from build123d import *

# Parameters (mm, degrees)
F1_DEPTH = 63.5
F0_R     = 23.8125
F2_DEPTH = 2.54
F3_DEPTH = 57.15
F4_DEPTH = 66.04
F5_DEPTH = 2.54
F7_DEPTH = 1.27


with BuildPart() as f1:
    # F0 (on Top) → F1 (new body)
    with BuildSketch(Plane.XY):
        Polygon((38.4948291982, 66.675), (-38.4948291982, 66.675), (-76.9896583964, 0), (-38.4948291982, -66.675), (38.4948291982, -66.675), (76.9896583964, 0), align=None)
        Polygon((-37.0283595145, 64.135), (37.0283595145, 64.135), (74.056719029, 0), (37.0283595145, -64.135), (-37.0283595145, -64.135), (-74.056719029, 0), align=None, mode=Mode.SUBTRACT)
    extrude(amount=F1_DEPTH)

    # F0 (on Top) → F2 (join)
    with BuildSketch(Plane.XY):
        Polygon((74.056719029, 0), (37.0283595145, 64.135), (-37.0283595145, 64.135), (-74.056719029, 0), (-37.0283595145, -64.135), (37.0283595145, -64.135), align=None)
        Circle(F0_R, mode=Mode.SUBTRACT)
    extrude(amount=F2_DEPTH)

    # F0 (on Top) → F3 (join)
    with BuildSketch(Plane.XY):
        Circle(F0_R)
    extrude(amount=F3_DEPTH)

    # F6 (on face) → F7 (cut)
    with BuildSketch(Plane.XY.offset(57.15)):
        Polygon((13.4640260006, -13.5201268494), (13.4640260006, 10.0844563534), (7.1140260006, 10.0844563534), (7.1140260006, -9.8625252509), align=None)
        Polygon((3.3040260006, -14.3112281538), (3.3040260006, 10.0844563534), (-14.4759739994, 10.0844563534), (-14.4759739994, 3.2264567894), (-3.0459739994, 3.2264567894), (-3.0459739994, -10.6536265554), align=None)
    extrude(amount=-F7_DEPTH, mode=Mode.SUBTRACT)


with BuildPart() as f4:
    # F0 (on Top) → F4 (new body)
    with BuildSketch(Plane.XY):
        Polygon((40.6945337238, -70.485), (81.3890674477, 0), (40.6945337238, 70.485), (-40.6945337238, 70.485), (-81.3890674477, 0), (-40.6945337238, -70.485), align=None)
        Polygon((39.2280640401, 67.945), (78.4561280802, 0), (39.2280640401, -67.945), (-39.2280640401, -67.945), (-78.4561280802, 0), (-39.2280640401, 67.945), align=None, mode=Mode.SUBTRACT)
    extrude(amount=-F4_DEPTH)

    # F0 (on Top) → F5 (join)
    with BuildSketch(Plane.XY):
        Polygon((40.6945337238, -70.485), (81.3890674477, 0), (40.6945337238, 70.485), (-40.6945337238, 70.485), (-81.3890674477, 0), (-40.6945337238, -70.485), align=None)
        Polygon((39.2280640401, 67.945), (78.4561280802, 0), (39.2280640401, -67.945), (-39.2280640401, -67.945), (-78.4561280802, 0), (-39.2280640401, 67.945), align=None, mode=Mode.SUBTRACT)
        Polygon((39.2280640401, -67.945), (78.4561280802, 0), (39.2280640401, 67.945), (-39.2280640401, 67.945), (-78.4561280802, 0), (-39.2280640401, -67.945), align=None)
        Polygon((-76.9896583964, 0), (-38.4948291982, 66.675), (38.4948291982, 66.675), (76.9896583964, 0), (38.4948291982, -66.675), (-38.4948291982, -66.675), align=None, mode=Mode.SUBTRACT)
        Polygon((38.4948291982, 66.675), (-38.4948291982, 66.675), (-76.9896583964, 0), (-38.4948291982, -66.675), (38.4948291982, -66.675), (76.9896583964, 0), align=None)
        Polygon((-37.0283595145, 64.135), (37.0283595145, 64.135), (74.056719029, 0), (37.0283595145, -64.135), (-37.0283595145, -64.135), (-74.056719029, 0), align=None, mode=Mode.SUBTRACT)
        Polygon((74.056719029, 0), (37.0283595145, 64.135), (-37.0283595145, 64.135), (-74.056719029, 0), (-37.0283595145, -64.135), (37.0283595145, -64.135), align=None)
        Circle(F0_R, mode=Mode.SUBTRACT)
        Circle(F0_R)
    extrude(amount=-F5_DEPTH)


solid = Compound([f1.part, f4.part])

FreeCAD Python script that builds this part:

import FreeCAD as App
import Part
import Sketcher
from FreeCAD import Vector
Q = App.Units.Quantity


def add_polygon(sketch, points):
    """Adds a closed chain of lines whose ends are joined by coincident constraints."""
    first, n = sketch.GeometryCount, len(points)
    for a, b in zip(points, points[1:] + points[:1]):
        sketch.addGeometry(Part.LineSegment(App.Vector(*a, 0), App.Vector(*b, 0)), False)
    for i in range(n):
        sketch.addConstraint(Sketcher.Constraint("Coincident", first + i, 2, first + (i + 1) % n, 1))

doc = App.newDocument("Part")
body = doc.addObject("PartDesign::Body", "Body")

sketch1 = doc.addObject("Sketcher::SketchObject", "Sketch")
body.addObject(sketch1)
sketch1.AttachmentSupport = (doc.XY_Plane, [""])
sketch1.MapMode = "FlatFace"
add_polygon(sketch1, [(38, 67), (-38, 67), (-77, 0), (-38, -67), (38, -67), (77, 0)])
add_polygon(sketch1, [(-74, 0), (-37, 64), (37, 64), (74, 0), (37, -64), (-37, -64)])
sketch1.addConstraint([
    Sketcher.Constraint("Horizontal", 0),
    Sketcher.Constraint("Horizontal", 3),
    Sketcher.Constraint("Horizontal", 7),
    Sketcher.Constraint("Horizontal", 10),
    Sketcher.Constraint("Symmetric", 0, 2, 3, 2, -1, 1),
    Sketcher.Constraint("Symmetric", 1, 2, 4, 2, -1, 1),
    Sketcher.Constraint("Symmetric", 6, 2, 9, 2, -1, 1),
    Sketcher.Constraint("Symmetric", 8, 2, 11, 2, -1, 1),
    Sketcher.Constraint("PointOnObject", 1, 2, -1),
    Sketcher.Constraint("PointOnObject", 8, 2, -1),
    Sketcher.Constraint("Parallel", 2, 5),
    Sketcher.Constraint("Parallel", 4, 6),
    Sketcher.Constraint("Parallel", 5, 8),
    Sketcher.Constraint("Parallel", 8, 11),
    Sketcher.Constraint("Vertical", 0, 2, 2, 2),
    Sketcher.Constraint("Angle", 1, Q("-120 deg")),
    Sketcher.Constraint("DistanceY", 6, 2, 0, 2, Q("0.1 in")),
    Sketcher.Constraint("DistanceY", 2, 2, 0, 2, Q("5.25 in")),
    Sketcher.Constraint("DistanceX", 0, 2, 0, 1, 76.989658),
    Sketcher.Constraint("DistanceX", 7, 1, 7, 2, 74.056719),
])
pad1 = doc.addObject("PartDesign::Pad", "Pad")
body.addObject(pad1)
pad1.Profile = sketch1
pad1.Length = Q("2.5 in")

sketch2 = doc.addObject("Sketcher::SketchObject", "Sketch001")
body.addObject(sketch2)
sketch2.AttachmentSupport = (doc.XY_Plane, [""])
sketch2.MapMode = "FlatFace"
add_polygon(sketch2, [(74, 0), (37, 64), (-37, 64), (-74, 0), (-37, -64), (37, -64)])
sketch2.addGeometry(Part.Circle(Vector(0, 0, 0), Vector(0, 0, 1), 24), False)
sketch2.addConstraint([
    Sketcher.Constraint("Horizontal", 1),
    Sketcher.Constraint("Horizontal", 4),
    Sketcher.Constraint("Coincident", 6, 3, -1, 1),
    Sketcher.Constraint("Symmetric", 0, 2, 3, 2, -1, 1),
    Sketcher.Constraint("Symmetric", 2, 2, 5, 2, -1, 1),
    Sketcher.Constraint("PointOnObject", 2, 2, -1),
    Sketcher.Constraint("Parallel", 2, 5),
    Sketcher.Constraint("Vertical", 1, 2, 3, 2),
    Sketcher.Constraint("Diameter", 6, Q("1.875 in")),
    Sketcher.Constraint("Angle", 0, Q("120 deg")),
    Sketcher.Constraint("DistanceY", 3, 2, 1, 2, Q("5.05 in")),
    Sketcher.Constraint("DistanceX", 1, 2, 1, 1, 74.056719),
])
pad2 = doc.addObject("PartDesign::Pad", "Pad001")
body.addObject(pad2)
pad2.Profile = sketch2
pad2.Length = Q("0.1 in")

sketch3 = doc.addObject("Sketcher::SketchObject", "Sketch002")
body.addObject(sketch3)
sketch3.AttachmentSupport = (doc.XY_Plane, [""])
sketch3.MapMode = "FlatFace"
sketch3.addGeometry(Part.Circle(Vector(0, 0, 0), Vector(0, 0, 1), 24), False)
sketch3.addConstraint([
    Sketcher.Constraint("Coincident", 0, 3, -1, 1),
    Sketcher.Constraint("Diameter", 0, Q("1.875 in")),
])
pad3 = doc.addObject("PartDesign::Pad", "Pad002")
body.addObject(pad3)
pad3.Profile = sketch3
pad3.Length = Q("2.25 in")

sketch4 = doc.addObject("Sketcher::SketchObject", "Sketch003")
body.addObject(sketch4)
sketch4.AttachmentSupport = (doc.XY_Plane, [""])
sketch4.MapMode = "FlatFace"
sketch4.AttachmentOffset = App.Placement(Vector(0, 0, 2.25 * 25.4), App.Rotation())
add_polygon(sketch4, [(13, -14), (13, 10), (7, 10), (7, -10)])
add_polygon(sketch4, [(3, -14), (3, 10), (-14, 10), (-14, 3), (-3, 3), (-3, -11)])
sketch4.addConstraint([
    Sketcher.Constraint("Vertical", 0),
    Sketcher.Constraint("Horizontal", 1),
    Sketcher.Constraint("Vertical", 2),
    Sketcher.Constraint("Vertical", 4),
    Sketcher.Constraint("Horizontal", 5),
    Sketcher.Constraint("Vertical", 6),
    Sketcher.Constraint("Horizontal", 7),
    Sketcher.Constraint("Vertical", 8),
    Sketcher.Constraint("Parallel", 3, 9),
    Sketcher.Constraint("Horizontal", 1, 2, 4, 2),
    Sketcher.Constraint("Equal", 3, 9),
    Sketcher.Constraint("DistanceX", 5, 2, 5, 1, Q("0.7 in")),
    Sketcher.Constraint("DistanceX", 1, 2, 1, 1, Q("0.25 in")),
    Sketcher.Constraint("DistanceY", 6, 2, 6, 1, Q("0.27 in")),
    Sketcher.Constraint("DistanceX", 4, 2, 0, 2, Q("0.4 in")),
    Sketcher.Constraint("DistanceY", 3, 2, 2, 2, Q("0.1440001 in")),
    Sketcher.Constraint("DistanceY", 2, 2, 2, 1, 19.946982),
    Sketcher.Constraint("DistanceY", 8, 2, 2, 2, 0.791101),
    Sketcher.Constraint("DistanceY", 9, 2, -1, 1, 14.311228),
    Sketcher.Constraint("DistanceX", -1, 1, 0, 2, 13.464026),
])
pocket1 = doc.addObject("PartDesign::Pocket", "Pocket")
body.addObject(pocket1)
pocket1.Profile = sketch4
pocket1.Length = Q("0.05 in")
body2 = doc.addObject("PartDesign::Body", "Body001")

sketch5 = doc.addObject("Sketcher::SketchObject", "Sketch004")
body2.addObject(sketch5)
sketch5.AttachmentSupport = (doc.getObject("XY_Plane001"), [""])
sketch5.MapMode = "FlatFace"
add_polygon(sketch5, [(41, -70), (81, 0), (41, 70), (-41, 70), (-81, 0), (-41, -70)])
add_polygon(sketch5, [(-39, 68), (39, 68), (78, 0), (39, -68), (-39, -68), (-78, 0)])
sketch5.addConstraint([
    Sketcher.Constraint("Horizontal", 2),
    Sketcher.Constraint("Horizontal", 5),
    Sketcher.Constraint("Horizontal", 6),
    Sketcher.Constraint("Horizontal", 9),
    Sketcher.Constraint("Symmetric", 0, 2, 3, 2, -1, 1),
    Sketcher.Constraint("Symmetric", 1, 2, 4, 2, -1, 1),
    Sketcher.Constraint("Symmetric", 6, 2, 9, 2, -1, 1),
    Sketcher.Constraint("Symmetric", 7, 2, 10, 2, -1, 1),
    Sketcher.Constraint("PointOnObject", 0, 2, -1),
    Sketcher.Constraint("PointOnObject", 7, 2, -1),
    Sketcher.Constraint("Parallel", 0, 3),
    Sketcher.Constraint("Parallel", 4, 7),
    Sketcher.Constraint("Parallel", 3, 8),
    Sketcher.Constraint("Parallel", 8, 11),
    Sketcher.Constraint("Vertical", 2, 2, 4, 2),
    Sketcher.Constraint("Angle", 0, Q("60 deg")),
    Sketcher.Constraint("DistanceY", 6, 2, 1, 2, Q("0.1 in")),
    Sketcher.Constraint("DistanceY", 4, 2, 2, 2, Q("5.55 in")),
    Sketcher.Constraint("DistanceX", 6, 1, 6, 2, 78.456128),
    Sketcher.Constraint("DistanceX", 2, 2, 0, 2, 122.083601),
])
pad4 = doc.addObject("PartDesign::Pad", "Pad003")
body2.addObject(pad4)
pad4.Profile = sketch5
pad4.Length = Q("2.6 in")
pad4.Reversed = True

sketch6 = doc.addObject("Sketcher::SketchObject", "Sketch005")
body2.addObject(sketch6)
sketch6.AttachmentSupport = (doc.getObject("XY_Plane001"), [""])
sketch6.MapMode = "FlatFace"
add_polygon(sketch6, [(41, -70), (81, 0), (41, 70), (-41, 70), (-81, 0), (-41, -70)])
sketch6.addConstraint([
    Sketcher.Constraint("Horizontal", 2),
    Sketcher.Constraint("Horizontal", 5),
    Sketcher.Constraint("Symmetric", 0, 2, 3, 2, -1, 1),
    Sketcher.Constraint("Symmetric", 1, 2, 4, 2, -1, 1),
    Sketcher.Constraint("PointOnObject", 0, 2, -1),
    Sketcher.Constraint("Parallel", 0, 3),
    Sketcher.Constraint("Vertical", 2, 2, 4, 2),
    Sketcher.Constraint("Angle", 0, Q("60 deg")),
    Sketcher.Constraint("DistanceY", 4, 2, 2, 2, Q("5.55 in")),
    Sketcher.Constraint("DistanceX", 2, 2, 0, 2, 122.083601),
])
pad5 = doc.addObject("PartDesign::Pad", "Pad004")
body2.addObject(pad5)
pad5.Profile = sketch6
pad5.Length = Q("0.1 in")
pad5.Reversed = True

doc.recompute()
